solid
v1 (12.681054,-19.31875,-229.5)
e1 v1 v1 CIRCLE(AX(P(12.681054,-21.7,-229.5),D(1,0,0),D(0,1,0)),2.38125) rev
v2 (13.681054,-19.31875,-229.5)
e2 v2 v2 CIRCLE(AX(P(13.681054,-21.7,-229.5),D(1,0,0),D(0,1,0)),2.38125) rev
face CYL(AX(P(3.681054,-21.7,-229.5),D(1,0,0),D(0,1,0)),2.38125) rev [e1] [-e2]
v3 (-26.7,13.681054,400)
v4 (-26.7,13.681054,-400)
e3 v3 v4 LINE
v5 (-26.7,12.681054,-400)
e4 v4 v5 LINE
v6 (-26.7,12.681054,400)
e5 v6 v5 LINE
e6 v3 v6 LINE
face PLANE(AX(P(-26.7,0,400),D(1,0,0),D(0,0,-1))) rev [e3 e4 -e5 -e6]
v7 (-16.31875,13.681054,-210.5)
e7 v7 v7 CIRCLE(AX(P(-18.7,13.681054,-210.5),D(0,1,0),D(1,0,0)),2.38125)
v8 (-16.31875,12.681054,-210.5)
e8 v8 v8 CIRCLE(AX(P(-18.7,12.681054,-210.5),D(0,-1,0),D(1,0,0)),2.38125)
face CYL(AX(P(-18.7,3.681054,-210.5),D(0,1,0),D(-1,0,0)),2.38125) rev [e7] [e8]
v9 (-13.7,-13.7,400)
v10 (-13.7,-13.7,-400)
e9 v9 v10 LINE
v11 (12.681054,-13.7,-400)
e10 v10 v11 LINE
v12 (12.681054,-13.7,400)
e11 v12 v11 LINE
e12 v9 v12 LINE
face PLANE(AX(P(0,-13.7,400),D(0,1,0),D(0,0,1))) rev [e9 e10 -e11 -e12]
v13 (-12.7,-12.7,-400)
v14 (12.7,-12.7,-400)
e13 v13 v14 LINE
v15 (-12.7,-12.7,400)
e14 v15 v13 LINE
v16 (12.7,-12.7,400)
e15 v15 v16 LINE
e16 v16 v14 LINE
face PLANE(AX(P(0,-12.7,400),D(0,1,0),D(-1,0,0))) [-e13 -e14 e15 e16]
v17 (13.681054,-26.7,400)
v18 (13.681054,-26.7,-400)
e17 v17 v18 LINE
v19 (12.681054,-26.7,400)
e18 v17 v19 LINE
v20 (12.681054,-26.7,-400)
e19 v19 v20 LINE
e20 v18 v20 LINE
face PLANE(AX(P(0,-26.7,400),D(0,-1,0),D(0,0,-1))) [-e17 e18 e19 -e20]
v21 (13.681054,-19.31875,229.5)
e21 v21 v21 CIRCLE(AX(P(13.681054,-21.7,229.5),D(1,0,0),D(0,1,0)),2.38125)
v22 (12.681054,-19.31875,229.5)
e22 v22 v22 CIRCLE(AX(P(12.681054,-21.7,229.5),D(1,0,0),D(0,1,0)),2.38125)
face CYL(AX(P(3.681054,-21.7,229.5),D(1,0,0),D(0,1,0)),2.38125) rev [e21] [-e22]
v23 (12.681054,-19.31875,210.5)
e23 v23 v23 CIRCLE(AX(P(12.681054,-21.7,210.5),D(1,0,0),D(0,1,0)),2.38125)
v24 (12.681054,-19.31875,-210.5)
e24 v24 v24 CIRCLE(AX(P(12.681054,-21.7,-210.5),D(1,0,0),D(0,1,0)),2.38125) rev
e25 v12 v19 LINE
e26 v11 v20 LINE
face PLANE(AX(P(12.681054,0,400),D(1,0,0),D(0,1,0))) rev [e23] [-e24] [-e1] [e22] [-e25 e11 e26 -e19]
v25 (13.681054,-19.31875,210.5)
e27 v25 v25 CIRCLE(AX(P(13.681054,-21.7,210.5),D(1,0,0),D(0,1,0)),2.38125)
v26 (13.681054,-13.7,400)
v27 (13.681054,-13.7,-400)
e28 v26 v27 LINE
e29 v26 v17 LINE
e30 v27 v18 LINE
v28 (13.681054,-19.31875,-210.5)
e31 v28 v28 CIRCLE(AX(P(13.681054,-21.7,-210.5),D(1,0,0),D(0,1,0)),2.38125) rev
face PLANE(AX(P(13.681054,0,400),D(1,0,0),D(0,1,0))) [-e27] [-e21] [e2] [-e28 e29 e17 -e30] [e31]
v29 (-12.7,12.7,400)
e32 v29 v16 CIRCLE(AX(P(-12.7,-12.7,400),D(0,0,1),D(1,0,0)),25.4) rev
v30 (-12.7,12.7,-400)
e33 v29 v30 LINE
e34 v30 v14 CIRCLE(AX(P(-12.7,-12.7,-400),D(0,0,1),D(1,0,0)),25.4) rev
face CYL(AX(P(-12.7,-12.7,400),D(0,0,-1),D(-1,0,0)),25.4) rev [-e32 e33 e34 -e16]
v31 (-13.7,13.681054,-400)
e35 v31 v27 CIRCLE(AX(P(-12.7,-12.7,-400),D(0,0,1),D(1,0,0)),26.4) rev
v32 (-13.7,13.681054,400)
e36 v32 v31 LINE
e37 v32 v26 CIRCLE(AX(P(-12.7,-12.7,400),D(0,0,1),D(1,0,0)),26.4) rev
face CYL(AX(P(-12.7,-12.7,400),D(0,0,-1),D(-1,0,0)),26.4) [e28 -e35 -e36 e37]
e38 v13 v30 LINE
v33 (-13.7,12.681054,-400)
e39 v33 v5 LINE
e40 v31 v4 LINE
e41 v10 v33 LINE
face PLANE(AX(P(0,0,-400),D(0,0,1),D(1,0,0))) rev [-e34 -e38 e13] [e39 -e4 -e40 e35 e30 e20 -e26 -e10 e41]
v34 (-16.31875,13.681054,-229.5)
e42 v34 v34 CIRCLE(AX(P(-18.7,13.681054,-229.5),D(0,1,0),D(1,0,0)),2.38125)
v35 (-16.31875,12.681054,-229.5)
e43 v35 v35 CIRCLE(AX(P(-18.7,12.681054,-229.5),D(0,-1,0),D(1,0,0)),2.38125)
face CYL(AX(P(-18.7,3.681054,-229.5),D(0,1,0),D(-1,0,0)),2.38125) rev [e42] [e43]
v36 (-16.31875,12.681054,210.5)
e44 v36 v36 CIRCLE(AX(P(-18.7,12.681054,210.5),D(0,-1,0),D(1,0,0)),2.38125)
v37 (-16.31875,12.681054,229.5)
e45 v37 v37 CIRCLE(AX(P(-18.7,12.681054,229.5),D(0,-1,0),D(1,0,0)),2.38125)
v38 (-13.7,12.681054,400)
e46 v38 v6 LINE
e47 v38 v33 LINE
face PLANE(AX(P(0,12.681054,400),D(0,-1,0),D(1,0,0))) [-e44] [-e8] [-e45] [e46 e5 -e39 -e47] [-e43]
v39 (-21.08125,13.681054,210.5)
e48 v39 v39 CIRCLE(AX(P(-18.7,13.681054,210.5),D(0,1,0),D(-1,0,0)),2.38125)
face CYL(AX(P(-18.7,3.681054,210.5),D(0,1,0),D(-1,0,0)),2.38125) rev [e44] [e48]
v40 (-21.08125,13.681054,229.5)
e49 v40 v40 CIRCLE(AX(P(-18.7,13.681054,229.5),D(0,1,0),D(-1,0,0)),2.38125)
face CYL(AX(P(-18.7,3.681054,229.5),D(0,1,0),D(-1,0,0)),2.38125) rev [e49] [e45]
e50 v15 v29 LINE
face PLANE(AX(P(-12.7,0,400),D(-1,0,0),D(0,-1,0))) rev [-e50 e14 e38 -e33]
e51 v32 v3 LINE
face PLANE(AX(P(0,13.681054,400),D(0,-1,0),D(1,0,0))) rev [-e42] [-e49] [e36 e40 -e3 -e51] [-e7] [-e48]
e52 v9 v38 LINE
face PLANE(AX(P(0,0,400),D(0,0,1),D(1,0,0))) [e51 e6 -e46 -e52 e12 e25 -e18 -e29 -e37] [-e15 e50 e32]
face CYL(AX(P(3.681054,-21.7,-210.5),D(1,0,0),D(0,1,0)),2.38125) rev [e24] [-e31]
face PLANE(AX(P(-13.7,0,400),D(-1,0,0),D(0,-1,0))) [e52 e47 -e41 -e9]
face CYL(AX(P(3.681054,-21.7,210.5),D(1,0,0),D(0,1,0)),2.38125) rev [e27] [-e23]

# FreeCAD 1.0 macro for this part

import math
import FreeCAD as App
import Part
import Sketcher

doc = App.newDocument("Part")
body = doc.addObject("PartDesign::Body", "Body")

# Sketch on XY plane
sketch1 = doc.addObject("Sketcher::SketchObject", "Sketch")
body.addObject(sketch1)
sketch1.AttachmentSupport = (doc.XY_Plane, [""])
sketch1.MapMode = "FlatFace"
sketch1.addGeometry(Part.ArcOfCircle(Part.Circle(App.Vector(-12.7, -12.7, 0), App.Vector(0, 0, 1), 26.4), math.radians(-2), math.radians(92)), False)
sketch1.addGeometry(Part.LineSegment(App.Vector(-13.7, 13.7, 0), App.Vector(-26.7, 13.7, 0)), False)
sketch1.addGeometry(Part.LineSegment(App.Vector(-26.7, 13.7, 0), App.Vector(-26.7, 12.7, 0)), False)
sketch1.addGeometry(Part.LineSegment(App.Vector(-26.7, 12.7, 0), App.Vector(-13.7, 12.7, 0)), False)
sketch1.addGeometry(Part.LineSegment(App.Vector(-13.7, 12.7, 0), App.Vector(-13.7, -13.7, 0)), False)
sketch1.addGeometry(Part.LineSegment(App.Vector(-13.7, -13.7, 0), App.Vector(12.7, -13.7, 0)), False)
sketch1.addGeometry(Part.LineSegment(App.Vector(12.7, -13.7, 0), App.Vector(12.7, -26.7, 0)), False)
sketch1.addGeometry(Part.LineSegment(App.Vector(12.7, -26.7, 0), App.Vector(13.7, -26.7, 0)), False)
sketch1.addGeometry(Part.LineSegment(App.Vector(13.7, -26.7, 0), App.Vector(13.7, -13.7, 0)), False)
sketch1.addGeometry(Part.LineSegment(App.Vector(-12.7, -12.7, 0), App.Vector(-12.7, 12.7, 0)), False)
sketch1.addGeometry(Part.ArcOfCircle(Part.Circle(App.Vector(-12.7, -12.7, 0), App.Vector(0, 0, 1), 25.4), math.radians(0), math.radians(90)), False)
sketch1.addGeometry(Part.LineSegment(App.Vector(12.7, -12.7, 0), App.Vector(-12.7, -12.7, 0)), False)
sketch1.addConstraint(Sketcher.Constraint("Coincident", 0, 2, 1, 1))
sketch1.addConstraint(Sketcher.Constraint("Coincident", 1, 2, 2, 1))
sketch1.addConstraint(Sketcher.Constraint("Coincident", 2, 2, 3, 1))
sketch1.addConstraint(Sketcher.Constraint("Coincident", 3, 2, 4, 1))
sketch1.addConstraint(Sketcher.Constraint("Coincident", 4, 2, 5, 1))
sketch1.addConstraint(Sketcher.Constraint("Coincident", 5, 2, 6, 1))
sketch1.addConstraint(Sketcher.Constraint("Coincident", 6, 2, 7, 1))
sketch1.addConstraint(Sketcher.Constraint("Coincident", 7, 2, 8, 1))
sketch1.addConstraint(Sketcher.Constraint("Coincident", 8, 2, 0, 1))
sketch1.addConstraint(Sketcher.Constraint("Coincident", 9, 2, 10, 2))
sketch1.addConstraint(Sketcher.Constraint("Coincident", 10, 1, 11, 1))
sketch1.addConstraint(Sketcher.Constraint("Coincident", 11, 2, 9, 1))
sketch1.addConstraint(Sketcher.Constraint("Horizontal", 1))
sketch1.addConstraint(Sketcher.Constraint("Vertical", 2))
sketch1.addConstraint(Sketcher.Constraint("Horizontal", 3))
sketch1.addConstraint(Sketcher.Constraint("Vertical", 4))
sketch1.addConstraint(Sketcher.Constraint("Horizontal", 5))
sketch1.addConstraint(Sketcher.Constraint("Vertical", 6))
sketch1.addConstraint(Sketcher.Constraint("Horizontal", 7))
sketch1.addConstraint(Sketcher.Constraint("Vertical", 8))
sketch1.addConstraint(Sketcher.Constraint("Vertical", 9))
sketch1.addConstraint(Sketcher.Constraint("Horizontal", 11))
sketch1.addConstraint(Sketcher.Constraint("Coincident", 10, 3, 0, 3))
sketch1.addConstraint(Sketcher.Constraint("Coincident", 11, 2, 0, 3))
sketch1.addConstraint(Sketcher.Constraint("Symmetric", 9, 2, 10, 1, -1, 1))
sketch1.addConstraint(Sketcher.Constraint("Horizontal", 5, 2, 8, 2))
sketch1.addConstraint(Sketcher.Constraint("Vertical", 0, 2, 3, 2))
sketch1.addConstraint(Sketcher.Constraint("Equal", 7, 2))
sketch1.addConstraint(Sketcher.Constraint("Equal", 5, 4))
sketch1.addConstraint(Sketcher.Constraint("Equal", 3, 6))
sketch1.addConstraint(Sketcher.Constraint("Radius", 0, 26.4))
sketch1.addConstraint(Sketcher.Constraint("Radius", 10, 25.4))
sketch1.addConstraint(Sketcher.Constraint("DistanceX", 1, 2, 1, 1, 13.0))
sketch1.addConstraint(Sketcher.Constraint("DistanceX", 7, 1, 7, 2, 1.0))
sketch1.addConstraint(Sketcher.Constraint("DistanceX", 0, 2, 10, 3, 1.0))
pad1 = doc.addObject("PartDesign::Pad", "Pad")
body.addObject(pad1)
pad1.Profile = sketch1
pad1.Length = 800
pad1.Midplane = True

# Sketch on XZ plane
sketch2 = doc.addObject("Sketcher::SketchObject", "Sketch001")
body.addObject(sketch2)
sketch2.AttachmentSupport = (doc.XZ_Plane, [""])
sketch2.MapMode = "FlatFace"
sketch2.AttachmentOffset = App.Placement(App.Vector(0, 0, -13.681054), App.Rotation())
sketch2.addGeometry(Part.Circle(App.Vector(-18.7, 210.5, 0), App.Vector(0, 0, 1), 2.4), False)
sketch2.addGeometry(Part.Circle(App.Vector(-18.7, 229.5, 0), App.Vector(0, 0, 1), 2.4), False)
sketch2.addGeometry(Part.Circle(App.Vector(-18.7, -229.5, 0), App.Vector(0, 0, 1), 2.4), False)
sketch2.addGeometry(Part.Circle(App.Vector(-18.7, -210.5, 0), App.Vector(0, 0, 1), 2.4), False)
sketch2.addConstraint(Sketcher.Constraint("Equal", 0, 1))
sketch2.addConstraint(Sketcher.Constraint("Equal", 1, 2))
sketch2.addConstraint(Sketcher.Constraint("Equal", 2, 3))
sketch2.addConstraint(Sketcher.Constraint("Symmetric", 1, 3, 2, 3, -1))
sketch2.addConstraint(Sketcher.Constraint("Symmetric", 0, 3, 3, 3, -1))
sketch2.addConstraint(Sketcher.Constraint("Vertical", 0, 3, 1, 3))
sketch2.addConstraint(Sketcher.Constraint("DistanceY", 0, 3, 1, 3, 19.0))
sketch2.addConstraint(Sketcher.Constraint("DistanceY", 2, 3, 0, 3, 440.0))
sketch2.addConstraint(Sketcher.Constraint("Diameter", 0, 4.7625))
sketch2.addConstraint(Sketcher.Constraint("DistanceX", 0, 3, -1, 1, 18.7))
pocket1 = doc.addObject("PartDesign::Pocket", "Pocket")
body.addObject(pocket1)
pocket1.Profile = sketch2
pocket1.Length = 10
pocket1.Reversed = True

# Sketch on YZ plane
sketch3 = doc.addObject("Sketcher::SketchObject", "Sketch002")
body.addObject(sketch3)
sketch3.AttachmentSupport = (doc.YZ_Plane, [""])
sketch3.MapMode = "FlatFace"
sketch3.AttachmentOffset = App.Placement(App.Vector(0, 0, 13.681054), App.Rotation())
sketch3.addGeometry(Part.Circle(App.Vector(-21.7, 229.5, 0), App.Vector(0, 0, 1), 2.4), False)
sketch3.addGeometry(Part.Circle(App.Vector(-21.7, 210.5, 0), App.Vector(0, 0, 1), 2.4), False)
sketch3.addGeometry(Part.Circle(App.Vector(-21.7, -210.5, 0), App.Vector(0, 0, 1), 2.4), False)
sketch3.addGeometry(Part.Circle(App.Vector(-21.7, -229.5, 0), App.Vector(0, 0, 1), 2.4), False)
sketch3.addConstraint(Sketcher.Constraint("Equal", 0, 1))
sketch3.addConstraint(Sketcher.Constraint("Equal", 1, 2))
sketch3.addConstraint(Sketcher.Constraint("Equal", 2, 3))
sketch3.addConstraint(Sketcher.Constraint("Symmetric", 1, 3, 2, 3, -1))
sketch3.addConstraint(Sketcher.Constraint("Symmetric", 0, 3, 3, 3, -1))
sketch3.addConstraint(Sketcher.Constraint("Vertical", 0, 3, 1, 3))
sketch3.addConstraint(Sketcher.Constraint("DistanceY", 1, 3, 0, 3, 19.0))
sketch3.addConstraint(Sketcher.Constraint("DistanceY", 2, 3, 1, 3, 421.0))
sketch3.addConstraint(Sketcher.Constraint("Diameter", 0, 4.7625))
sketch3.addConstraint(Sketcher.Constraint("DistanceX", 0, 3, -1, 1, 21.7))
pocket2 = doc.addObject("PartDesign::Pocket", "Pocket001")
body.addObject(pocket2)
pocket2.Profile = sketch3
pocket2.Length = 10

doc.recompute()
